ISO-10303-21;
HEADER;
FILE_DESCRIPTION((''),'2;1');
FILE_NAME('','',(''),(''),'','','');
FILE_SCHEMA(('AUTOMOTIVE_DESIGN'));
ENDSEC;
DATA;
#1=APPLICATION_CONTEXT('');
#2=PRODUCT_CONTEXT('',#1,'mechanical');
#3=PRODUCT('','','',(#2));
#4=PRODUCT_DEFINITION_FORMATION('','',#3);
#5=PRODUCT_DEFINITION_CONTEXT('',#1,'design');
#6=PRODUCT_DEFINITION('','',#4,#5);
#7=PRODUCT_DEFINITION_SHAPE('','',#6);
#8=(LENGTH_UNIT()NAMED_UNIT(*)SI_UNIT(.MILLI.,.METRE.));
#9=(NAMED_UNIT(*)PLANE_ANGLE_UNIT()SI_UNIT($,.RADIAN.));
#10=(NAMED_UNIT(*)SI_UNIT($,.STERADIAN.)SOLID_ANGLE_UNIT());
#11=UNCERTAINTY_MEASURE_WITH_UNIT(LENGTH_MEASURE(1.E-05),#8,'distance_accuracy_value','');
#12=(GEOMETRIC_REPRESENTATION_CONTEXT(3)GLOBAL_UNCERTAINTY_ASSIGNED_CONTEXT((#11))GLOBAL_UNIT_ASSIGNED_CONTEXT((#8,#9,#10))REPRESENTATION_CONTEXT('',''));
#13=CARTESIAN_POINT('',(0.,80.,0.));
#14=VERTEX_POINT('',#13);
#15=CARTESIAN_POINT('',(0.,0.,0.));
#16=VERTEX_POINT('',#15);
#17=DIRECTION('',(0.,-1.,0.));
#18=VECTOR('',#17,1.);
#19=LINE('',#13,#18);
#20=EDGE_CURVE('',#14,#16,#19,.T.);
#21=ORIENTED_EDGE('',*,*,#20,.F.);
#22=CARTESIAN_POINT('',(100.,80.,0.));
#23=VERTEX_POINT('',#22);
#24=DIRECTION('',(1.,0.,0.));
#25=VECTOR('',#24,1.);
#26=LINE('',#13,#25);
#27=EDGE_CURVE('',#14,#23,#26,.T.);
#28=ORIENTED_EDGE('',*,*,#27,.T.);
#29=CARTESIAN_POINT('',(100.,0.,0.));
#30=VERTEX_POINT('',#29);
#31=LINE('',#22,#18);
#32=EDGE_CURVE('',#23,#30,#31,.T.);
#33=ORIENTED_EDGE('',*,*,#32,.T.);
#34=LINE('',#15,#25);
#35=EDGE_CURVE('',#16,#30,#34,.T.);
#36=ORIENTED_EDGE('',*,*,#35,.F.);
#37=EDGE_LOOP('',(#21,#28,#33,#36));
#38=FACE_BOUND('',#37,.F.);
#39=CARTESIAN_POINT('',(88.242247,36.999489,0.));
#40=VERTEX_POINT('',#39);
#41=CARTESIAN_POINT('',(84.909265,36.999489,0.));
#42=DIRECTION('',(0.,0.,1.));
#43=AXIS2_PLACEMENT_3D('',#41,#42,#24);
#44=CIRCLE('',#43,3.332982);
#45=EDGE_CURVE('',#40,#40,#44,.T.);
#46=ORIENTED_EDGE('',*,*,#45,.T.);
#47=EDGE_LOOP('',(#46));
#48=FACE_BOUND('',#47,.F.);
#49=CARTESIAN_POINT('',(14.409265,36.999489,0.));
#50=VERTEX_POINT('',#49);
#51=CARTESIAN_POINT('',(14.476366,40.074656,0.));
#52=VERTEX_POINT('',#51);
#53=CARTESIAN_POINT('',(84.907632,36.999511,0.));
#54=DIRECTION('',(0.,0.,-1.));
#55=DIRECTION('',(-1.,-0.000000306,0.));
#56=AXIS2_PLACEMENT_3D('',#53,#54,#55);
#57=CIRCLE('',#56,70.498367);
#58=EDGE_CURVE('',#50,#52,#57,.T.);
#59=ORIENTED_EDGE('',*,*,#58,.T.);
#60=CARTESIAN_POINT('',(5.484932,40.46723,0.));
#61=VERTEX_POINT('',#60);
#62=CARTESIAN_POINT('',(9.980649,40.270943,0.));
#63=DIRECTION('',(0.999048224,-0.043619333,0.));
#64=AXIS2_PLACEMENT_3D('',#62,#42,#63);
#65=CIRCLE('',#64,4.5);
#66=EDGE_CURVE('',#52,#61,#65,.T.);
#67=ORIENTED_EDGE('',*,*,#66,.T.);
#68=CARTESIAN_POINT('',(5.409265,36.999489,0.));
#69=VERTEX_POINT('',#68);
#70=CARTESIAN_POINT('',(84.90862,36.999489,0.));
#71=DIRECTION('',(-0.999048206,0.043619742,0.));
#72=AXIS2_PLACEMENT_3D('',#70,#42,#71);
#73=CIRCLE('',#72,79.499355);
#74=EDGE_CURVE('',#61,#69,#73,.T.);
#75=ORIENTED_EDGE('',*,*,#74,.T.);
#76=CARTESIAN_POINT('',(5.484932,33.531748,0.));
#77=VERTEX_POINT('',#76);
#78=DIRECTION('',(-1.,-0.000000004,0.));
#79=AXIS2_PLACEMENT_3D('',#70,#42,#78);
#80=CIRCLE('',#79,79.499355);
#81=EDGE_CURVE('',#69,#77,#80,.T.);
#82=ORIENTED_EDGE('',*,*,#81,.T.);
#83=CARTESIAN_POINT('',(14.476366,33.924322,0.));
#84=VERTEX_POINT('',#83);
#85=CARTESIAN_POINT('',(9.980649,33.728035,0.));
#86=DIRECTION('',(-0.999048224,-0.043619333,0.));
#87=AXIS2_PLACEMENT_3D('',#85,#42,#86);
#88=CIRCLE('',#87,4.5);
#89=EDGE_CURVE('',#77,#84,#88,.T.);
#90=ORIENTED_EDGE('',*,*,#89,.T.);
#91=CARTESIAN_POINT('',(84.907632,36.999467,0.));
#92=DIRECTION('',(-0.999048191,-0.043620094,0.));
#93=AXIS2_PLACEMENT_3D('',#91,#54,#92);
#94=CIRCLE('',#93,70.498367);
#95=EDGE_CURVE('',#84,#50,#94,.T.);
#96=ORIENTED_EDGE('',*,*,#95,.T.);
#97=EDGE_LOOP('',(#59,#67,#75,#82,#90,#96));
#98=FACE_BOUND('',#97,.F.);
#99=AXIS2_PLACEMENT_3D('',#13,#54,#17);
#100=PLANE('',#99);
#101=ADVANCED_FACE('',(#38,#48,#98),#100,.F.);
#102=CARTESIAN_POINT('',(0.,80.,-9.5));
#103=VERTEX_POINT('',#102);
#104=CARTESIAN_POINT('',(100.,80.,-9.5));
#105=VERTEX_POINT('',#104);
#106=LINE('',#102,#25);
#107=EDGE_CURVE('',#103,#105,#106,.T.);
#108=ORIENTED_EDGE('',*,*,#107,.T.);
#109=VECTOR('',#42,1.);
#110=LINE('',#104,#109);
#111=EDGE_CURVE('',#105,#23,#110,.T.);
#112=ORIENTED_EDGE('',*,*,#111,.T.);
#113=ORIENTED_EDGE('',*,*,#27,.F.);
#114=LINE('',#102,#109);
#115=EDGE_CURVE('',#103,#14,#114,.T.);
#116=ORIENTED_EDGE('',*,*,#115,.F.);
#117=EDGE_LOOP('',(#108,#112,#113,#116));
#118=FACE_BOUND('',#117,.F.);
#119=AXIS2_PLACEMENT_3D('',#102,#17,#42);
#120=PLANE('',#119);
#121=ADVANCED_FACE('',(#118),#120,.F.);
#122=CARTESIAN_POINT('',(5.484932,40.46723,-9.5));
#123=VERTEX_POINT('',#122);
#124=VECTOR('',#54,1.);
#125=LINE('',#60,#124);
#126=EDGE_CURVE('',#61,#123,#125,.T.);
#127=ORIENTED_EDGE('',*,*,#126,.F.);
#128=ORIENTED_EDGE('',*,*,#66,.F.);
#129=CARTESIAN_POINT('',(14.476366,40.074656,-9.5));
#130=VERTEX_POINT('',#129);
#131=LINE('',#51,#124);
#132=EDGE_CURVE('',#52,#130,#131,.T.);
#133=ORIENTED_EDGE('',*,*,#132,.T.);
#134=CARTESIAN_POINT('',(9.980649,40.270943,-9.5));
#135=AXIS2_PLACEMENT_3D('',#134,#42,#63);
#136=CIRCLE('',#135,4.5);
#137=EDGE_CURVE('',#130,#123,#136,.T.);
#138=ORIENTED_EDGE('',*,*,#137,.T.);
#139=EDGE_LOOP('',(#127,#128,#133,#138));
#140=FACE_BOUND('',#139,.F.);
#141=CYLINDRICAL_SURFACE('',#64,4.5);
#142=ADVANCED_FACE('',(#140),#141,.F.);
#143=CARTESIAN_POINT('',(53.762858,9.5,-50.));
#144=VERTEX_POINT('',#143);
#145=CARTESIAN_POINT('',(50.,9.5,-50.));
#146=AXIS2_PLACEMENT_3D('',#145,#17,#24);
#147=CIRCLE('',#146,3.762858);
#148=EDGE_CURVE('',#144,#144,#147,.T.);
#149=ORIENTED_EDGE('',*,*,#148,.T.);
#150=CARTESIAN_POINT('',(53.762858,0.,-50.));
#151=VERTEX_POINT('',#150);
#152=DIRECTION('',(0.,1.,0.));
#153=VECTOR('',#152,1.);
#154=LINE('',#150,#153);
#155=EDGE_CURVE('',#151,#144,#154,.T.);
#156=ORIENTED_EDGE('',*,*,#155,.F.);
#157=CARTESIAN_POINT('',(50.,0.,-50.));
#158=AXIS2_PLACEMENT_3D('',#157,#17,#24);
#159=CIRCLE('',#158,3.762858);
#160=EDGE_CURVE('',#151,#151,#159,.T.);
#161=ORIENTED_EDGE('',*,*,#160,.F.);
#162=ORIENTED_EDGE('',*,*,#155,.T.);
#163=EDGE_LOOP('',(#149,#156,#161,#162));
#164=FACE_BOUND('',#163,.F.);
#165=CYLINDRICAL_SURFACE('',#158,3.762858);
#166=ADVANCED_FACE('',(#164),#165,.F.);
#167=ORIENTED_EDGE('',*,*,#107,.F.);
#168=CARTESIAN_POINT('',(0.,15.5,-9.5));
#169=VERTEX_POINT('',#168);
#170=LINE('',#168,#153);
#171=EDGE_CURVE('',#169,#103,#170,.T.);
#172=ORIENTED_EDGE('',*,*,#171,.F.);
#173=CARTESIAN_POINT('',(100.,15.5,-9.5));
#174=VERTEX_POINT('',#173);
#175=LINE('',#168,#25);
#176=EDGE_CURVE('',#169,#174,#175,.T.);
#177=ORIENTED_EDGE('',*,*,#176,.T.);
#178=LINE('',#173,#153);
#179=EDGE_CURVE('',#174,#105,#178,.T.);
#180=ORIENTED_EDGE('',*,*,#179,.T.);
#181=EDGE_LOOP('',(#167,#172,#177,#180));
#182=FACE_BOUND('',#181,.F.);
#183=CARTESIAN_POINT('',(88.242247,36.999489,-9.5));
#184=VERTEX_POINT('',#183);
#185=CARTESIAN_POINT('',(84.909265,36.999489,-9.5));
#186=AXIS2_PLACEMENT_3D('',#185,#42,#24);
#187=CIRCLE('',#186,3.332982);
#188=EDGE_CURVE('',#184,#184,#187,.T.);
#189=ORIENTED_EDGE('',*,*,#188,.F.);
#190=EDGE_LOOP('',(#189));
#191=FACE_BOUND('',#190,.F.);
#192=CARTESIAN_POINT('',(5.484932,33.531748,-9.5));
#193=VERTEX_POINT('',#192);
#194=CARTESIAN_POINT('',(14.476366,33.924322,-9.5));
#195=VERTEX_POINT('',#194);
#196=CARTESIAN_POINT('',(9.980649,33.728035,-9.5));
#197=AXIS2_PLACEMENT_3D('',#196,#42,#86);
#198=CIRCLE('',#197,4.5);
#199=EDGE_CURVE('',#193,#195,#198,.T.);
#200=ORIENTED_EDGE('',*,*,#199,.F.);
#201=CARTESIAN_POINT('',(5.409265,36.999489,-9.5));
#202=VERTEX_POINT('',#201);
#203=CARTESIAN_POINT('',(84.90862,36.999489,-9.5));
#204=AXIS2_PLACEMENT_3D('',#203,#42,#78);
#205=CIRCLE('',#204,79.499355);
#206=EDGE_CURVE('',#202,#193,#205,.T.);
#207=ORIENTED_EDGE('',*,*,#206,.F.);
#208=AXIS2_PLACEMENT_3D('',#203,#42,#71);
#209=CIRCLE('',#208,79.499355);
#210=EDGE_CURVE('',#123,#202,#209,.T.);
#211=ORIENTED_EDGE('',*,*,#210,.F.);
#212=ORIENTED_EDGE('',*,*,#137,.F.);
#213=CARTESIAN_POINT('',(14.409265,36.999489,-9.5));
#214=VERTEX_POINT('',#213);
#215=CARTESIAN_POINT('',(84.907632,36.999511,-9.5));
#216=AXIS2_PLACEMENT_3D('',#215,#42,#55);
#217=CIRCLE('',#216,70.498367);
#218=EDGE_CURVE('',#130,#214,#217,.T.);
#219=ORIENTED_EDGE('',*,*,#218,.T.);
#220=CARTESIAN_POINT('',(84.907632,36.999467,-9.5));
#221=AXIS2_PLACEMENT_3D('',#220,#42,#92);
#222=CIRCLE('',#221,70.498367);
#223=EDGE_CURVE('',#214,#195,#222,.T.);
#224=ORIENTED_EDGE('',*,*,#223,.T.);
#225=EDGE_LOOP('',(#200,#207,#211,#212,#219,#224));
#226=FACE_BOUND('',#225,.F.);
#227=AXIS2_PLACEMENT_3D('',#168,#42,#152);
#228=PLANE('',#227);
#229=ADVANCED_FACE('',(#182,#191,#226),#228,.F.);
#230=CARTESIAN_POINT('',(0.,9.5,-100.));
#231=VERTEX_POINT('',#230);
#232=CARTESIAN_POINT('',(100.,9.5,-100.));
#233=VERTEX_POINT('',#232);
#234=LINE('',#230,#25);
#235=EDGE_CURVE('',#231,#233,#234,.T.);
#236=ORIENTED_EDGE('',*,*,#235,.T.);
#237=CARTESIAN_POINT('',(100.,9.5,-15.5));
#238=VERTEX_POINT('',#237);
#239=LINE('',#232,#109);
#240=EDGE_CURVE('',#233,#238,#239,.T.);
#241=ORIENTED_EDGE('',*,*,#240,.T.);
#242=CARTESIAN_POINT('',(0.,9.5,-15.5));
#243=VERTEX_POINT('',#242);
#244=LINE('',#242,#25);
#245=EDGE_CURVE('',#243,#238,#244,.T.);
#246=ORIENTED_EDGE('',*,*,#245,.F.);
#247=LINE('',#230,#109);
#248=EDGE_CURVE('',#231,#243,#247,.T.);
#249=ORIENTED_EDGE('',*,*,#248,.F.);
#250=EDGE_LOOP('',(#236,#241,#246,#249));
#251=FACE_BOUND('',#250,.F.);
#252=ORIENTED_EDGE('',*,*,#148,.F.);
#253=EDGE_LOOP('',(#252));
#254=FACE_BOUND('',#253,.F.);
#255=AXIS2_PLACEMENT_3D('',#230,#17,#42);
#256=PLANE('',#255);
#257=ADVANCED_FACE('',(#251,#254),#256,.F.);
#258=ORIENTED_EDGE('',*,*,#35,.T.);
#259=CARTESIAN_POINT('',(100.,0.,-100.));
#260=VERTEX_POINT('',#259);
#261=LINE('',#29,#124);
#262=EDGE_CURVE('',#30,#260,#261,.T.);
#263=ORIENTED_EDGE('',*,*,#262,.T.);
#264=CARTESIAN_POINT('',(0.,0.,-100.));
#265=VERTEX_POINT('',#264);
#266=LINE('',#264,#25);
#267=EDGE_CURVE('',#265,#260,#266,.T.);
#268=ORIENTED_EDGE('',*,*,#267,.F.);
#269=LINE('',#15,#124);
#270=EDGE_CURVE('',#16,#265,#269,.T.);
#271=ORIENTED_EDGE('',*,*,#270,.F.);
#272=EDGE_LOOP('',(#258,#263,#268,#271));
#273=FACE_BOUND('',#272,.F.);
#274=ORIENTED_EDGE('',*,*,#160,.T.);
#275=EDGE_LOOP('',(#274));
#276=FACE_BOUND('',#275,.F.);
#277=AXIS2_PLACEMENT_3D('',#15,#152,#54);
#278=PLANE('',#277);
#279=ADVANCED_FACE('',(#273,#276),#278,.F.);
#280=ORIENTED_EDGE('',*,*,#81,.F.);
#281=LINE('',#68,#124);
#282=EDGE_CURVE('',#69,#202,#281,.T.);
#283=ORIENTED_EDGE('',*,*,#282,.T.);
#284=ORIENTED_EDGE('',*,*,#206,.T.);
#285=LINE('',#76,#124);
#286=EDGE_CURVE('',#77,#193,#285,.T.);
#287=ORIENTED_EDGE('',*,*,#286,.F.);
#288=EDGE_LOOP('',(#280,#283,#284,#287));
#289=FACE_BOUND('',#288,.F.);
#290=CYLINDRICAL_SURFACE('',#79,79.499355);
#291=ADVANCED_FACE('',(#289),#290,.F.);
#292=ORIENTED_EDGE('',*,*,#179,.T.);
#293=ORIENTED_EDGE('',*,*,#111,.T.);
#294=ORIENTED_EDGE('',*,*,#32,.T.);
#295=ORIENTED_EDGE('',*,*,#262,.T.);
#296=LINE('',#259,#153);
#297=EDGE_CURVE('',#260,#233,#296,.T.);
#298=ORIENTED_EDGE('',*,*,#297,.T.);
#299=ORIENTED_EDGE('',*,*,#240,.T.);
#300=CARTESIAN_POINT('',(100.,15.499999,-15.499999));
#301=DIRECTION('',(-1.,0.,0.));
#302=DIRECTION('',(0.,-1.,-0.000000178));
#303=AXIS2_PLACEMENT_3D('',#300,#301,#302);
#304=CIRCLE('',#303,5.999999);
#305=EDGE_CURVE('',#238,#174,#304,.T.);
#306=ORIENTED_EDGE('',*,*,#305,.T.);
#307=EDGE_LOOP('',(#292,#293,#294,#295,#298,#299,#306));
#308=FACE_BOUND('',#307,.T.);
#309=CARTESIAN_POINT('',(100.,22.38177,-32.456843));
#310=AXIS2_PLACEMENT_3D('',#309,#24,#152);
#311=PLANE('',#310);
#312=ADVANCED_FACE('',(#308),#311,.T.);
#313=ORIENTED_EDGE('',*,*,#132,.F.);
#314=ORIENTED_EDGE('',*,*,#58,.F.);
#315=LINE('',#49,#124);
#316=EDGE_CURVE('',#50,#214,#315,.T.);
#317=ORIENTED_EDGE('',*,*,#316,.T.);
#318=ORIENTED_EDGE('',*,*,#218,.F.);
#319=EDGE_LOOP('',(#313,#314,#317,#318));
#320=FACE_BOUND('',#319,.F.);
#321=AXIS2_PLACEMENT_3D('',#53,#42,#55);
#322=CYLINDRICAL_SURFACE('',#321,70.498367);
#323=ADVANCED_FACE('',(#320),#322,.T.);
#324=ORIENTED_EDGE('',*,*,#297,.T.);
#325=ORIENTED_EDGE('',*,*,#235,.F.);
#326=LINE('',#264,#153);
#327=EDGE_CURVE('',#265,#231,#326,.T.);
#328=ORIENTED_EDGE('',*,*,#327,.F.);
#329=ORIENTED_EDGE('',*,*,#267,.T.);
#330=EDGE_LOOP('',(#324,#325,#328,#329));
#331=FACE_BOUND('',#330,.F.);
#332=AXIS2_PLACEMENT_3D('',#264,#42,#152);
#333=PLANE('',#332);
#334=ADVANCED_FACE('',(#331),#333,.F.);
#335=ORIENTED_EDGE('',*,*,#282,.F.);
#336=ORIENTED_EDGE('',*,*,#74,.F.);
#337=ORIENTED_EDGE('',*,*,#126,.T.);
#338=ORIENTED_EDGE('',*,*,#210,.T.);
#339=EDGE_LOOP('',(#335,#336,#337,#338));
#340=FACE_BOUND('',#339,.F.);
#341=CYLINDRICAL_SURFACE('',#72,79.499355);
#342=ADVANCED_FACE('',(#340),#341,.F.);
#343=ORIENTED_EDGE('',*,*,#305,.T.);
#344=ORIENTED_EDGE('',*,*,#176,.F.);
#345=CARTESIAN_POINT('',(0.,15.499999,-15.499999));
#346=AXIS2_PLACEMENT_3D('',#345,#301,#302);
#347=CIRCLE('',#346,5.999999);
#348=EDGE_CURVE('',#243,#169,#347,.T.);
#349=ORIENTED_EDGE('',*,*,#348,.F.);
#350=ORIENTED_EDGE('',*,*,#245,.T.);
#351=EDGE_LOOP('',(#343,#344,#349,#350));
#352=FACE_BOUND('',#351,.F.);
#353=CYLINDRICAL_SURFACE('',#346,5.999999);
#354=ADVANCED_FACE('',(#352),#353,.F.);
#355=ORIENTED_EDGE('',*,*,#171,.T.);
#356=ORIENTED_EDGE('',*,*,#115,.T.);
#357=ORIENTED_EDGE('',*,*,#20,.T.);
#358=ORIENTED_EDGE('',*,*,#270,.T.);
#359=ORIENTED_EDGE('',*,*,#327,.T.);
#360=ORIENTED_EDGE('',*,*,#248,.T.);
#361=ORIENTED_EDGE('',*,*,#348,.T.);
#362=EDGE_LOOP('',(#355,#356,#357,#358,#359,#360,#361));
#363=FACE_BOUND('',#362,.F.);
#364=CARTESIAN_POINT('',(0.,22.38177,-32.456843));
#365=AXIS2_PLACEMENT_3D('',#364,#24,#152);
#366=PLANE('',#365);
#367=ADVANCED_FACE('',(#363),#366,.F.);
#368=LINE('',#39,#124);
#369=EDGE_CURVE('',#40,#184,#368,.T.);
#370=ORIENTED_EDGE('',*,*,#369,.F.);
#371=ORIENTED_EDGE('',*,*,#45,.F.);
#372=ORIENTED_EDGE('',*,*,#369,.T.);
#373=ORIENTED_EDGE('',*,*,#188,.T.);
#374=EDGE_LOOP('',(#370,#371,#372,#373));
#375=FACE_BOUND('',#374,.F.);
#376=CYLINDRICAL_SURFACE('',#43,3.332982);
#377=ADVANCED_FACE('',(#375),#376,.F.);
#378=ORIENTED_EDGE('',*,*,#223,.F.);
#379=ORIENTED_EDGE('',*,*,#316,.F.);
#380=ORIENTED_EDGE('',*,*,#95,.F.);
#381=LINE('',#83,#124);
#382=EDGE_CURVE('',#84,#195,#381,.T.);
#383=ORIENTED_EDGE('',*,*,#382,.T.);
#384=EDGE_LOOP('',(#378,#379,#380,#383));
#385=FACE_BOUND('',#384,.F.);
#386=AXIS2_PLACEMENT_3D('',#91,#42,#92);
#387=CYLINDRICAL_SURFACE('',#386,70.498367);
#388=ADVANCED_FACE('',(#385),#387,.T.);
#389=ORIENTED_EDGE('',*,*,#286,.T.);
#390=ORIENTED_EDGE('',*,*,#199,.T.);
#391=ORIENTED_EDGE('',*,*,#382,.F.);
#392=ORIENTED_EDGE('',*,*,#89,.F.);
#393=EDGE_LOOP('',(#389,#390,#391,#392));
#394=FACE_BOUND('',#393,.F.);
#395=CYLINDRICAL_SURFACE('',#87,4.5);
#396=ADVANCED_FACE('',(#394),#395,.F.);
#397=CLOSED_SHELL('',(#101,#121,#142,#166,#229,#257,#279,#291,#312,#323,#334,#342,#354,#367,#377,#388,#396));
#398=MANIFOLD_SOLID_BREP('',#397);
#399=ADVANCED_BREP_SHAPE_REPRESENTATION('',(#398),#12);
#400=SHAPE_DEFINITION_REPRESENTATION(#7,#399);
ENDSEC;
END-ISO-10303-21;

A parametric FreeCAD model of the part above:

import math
import FreeCAD as App
import Part
import Sketcher
from FreeCAD import Vector
Q = App.Units.Quantity

doc = App.newDocument("Part")
params = doc.addObject("Spreadsheet::Sheet", "Params")
for row, (alias, value) in enumerate([
    ("sketch1_radius", "5.999999 mm"),
    ("sketch1_width", "80 mm"),
    ("sketch1_height", "100 mm"),
    ("sketch1_width2", "9.5 mm"),
    ("pad1_length", "100 mm"),
    ("sketch2_radius", "4.5 mm"),
    ("sketch2_radius2", "4.5 mm"),
    ("pocket1_length", "25 mm"),
    ("pocket2_length", "25 mm"),
], start=1):
    params.set(f"A{row}", alias)
    params.set(f"B{row}", "=" + value)
    params.setAlias(f"B{row}", alias)

body = doc.addObject("PartDesign::Body", "Body")

sketch1 = body.newObject("Sketcher::SketchObject", "Sketch")
sketch1.AttachmentSupport = (doc.getObject("YZ_Plane"), [""])
sketch1.MapMode = "FlatFace"
sketch1.addGeometry([
    Part.LineSegment(Vector(80, 0, 0), Vector(0, 0, 0)),
    Part.LineSegment(Vector(0, 0, 0), Vector(0, -100, 0)),
    Part.LineSegment(Vector(0, -100, 0), Vector(9.5, -100, 0)),
    Part.LineSegment(Vector(9.5, -100, 0), Vector(9.5, -15.5, 0)),
    Part.ArcOfCircle(Part.Circle(Vector(15.499999, -15.499999, 0), Vector(0, 0, 1), 5.999999), math.radians(89.99999), math.radians(180.00001)),
    Part.LineSegment(Vector(15.5, -9.5, 0), Vector(80, -9.5, 0)),
    Part.LineSegment(Vector(80, -9.5, 0), Vector(80, 0, 0)),
], False)
sketch1.addConstraint([
    Sketcher.Constraint("Coincident", 0, 2, 1, 1),
    Sketcher.Constraint("Coincident", 1, 2, 2, 1),
    Sketcher.Constraint("Coincident", 2, 2, 3, 1),
    Sketcher.Constraint("Tangent", 3, 2, 4, 2),
    Sketcher.Constraint("Tangent", 4, 1, 5, 1),
    Sketcher.Constraint("Coincident", 5, 2, 6, 1),
    Sketcher.Constraint("Coincident", 6, 2, 0, 1),
    Sketcher.Constraint("Horizontal", 0),
    Sketcher.Constraint("Vertical", 1),
    Sketcher.Constraint("Horizontal", 2),
    Sketcher.Constraint("Vertical", 3),
    Sketcher.Constraint("Horizontal", 5),
    Sketcher.Constraint("Vertical", 6),
    Sketcher.Constraint("Coincident", 0, 2, -1, 1),
    Sketcher.Constraint("Equal", 2, 6),
    Sketcher.Constraint("Radius", 4, Q("5.999999 mm")),
    Sketcher.Constraint("DistanceX", 0, 2, 0, 1, Q("80 mm")),
    Sketcher.Constraint("DistanceY", 1, 2, 1, 1, Q("100 mm")),
    Sketcher.Constraint("DistanceX", 2, 1, 2, 2, Q("9.5 mm")),
])
sketch1.setExpression("Constraints[15]", "Params.sketch1_radius")
sketch1.setExpression("Constraints[16]", "Params.sketch1_width")
sketch1.setExpression("Constraints[17]", "Params.sketch1_height")
sketch1.setExpression("Constraints[18]", "Params.sketch1_width2")
pad1 = body.newObject("PartDesign::Pad", "Pad")
pad1.Profile = sketch1
pad1.setExpression("Length", "Params.pad1_length")

sketch2 = body.newObject("Sketcher::SketchObject", "Sketch001")
sketch2.AttachmentSupport = (doc.getObject("XY_Plane"), [""])
sketch2.MapMode = "FlatFace"
sketch2.addGeometry([
    Part.Circle(Vector(84.909265, 36.999489, 0), Vector(0, 0, 1), 3.332982),
    Part.ArcOfCircle(Part.Circle(Vector(9.980649, 33.728035, 0), Vector(0, 0, 1), 4.5), math.radians(-177.500003), math.radians(2.499997)),
    Part.ArcOfCircle(Part.Circle(Vector(84.907632, 36.999467, 0), Vector(0, 0, 1), 70.498367), math.radians(179.999982), math.radians(182.500041)),
    Part.ArcOfCircle(Part.Circle(Vector(84.907632, 36.999511, 0), Vector(0, 0, 1), 70.498367), math.radians(177.499959), math.radians(180.000018)),
    Part.ArcOfCircle(Part.Circle(Vector(9.980649, 40.270943, 0), Vector(0, 0, 1), 4.5), math.radians(-2.499997), math.radians(177.500003)),
    Part.ArcOfCircle(Part.Circle(Vector(84.90862, 36.999489, 0), Vector(0, 0, 1), 79.499355), math.radians(177.49998), math.radians(180)),
    Part.ArcOfCircle(Part.Circle(Vector(84.90862, 36.999489, 0), Vector(0, 0, 1), 79.499355), math.radians(-180), math.radians(-177.49998)),
], False)
sketch2.addConstraint([
    Sketcher.Constraint("Coincident", 1, 2, 2, 2),
    Sketcher.Constraint("Coincident", 2, 1, 3, 2),
    Sketcher.Constraint("Coincident", 3, 1, 4, 1),
    Sketcher.Constraint("Coincident", 4, 2, 5, 1),
    Sketcher.Constraint("Coincident", 5, 2, 6, 1),
    Sketcher.Constraint("Coincident", 6, 2, 1, 1),
    Sketcher.Constraint("Coincident", 6, 3, 5, 3),
    Sketcher.Constraint("Radius", 1, Q("4.5 mm")),
    Sketcher.Constraint("Radius", 4, Q("4.5 mm")),
    Sketcher.Constraint("DistanceX", 5, 2, 2, 1, Q("9 mm")),
    Sketcher.Constraint("Diameter", 0, Q("6.665964 mm")),
    Sketcher.Constraint("Radius", 2, Q("70.498367 mm")),
    Sketcher.Constraint("Radius", 3, Q("70.498367 mm")),
    Sketcher.Constraint("Radius", 5, Q("79.499355 mm")),
    Sketcher.Constraint("DistanceX", 2, 1, 1, 2, Q("0.067101 mm")),
    Sketcher.Constraint("DistanceX", 2, 1, 3, 1, Q("0.067101 mm")),
    Sketcher.Constraint("DistanceY", -1, 1, 0, 3, Q("36.999489 mm")),
    Sketcher.Constraint("DistanceX", -1, 1, 1, 3, Q("9.980649 mm")),
    Sketcher.Constraint("DistanceY", -1, 1, 3, 3, Q("36.999511 mm")),
    Sketcher.Constraint("DistanceX", -1, 1, 4, 3, Q("9.980649 mm")),
    Sketcher.Constraint("DistanceX", -1, 1, 5, 3, Q("84.90862 mm")),
    Sketcher.Constraint("DistanceY", -1, 1, 2, 1, Q("36.999489 mm")),
    Sketcher.Constraint("DistanceY", -1, 1, 4, 2, Q("40.46723 mm")),
    Sketcher.Constraint("DistanceY", -1, 1, 5, 2, Q("36.999489 mm")),
    Sketcher.Constraint("DistanceY", -1, 1, 6, 2, Q("33.531748 mm")),
    Sketcher.Constraint("DistanceX", -1, 1, 0, 3, Q("84.909265 mm")),
])
sketch2.setExpression("Constraints[7]", "Params.sketch2_radius")
sketch2.setExpression("Constraints[8]", "Params.sketch2_radius2")
pocket1 = body.newObject("PartDesign::Pocket", "Pocket")
pocket1.Profile = sketch2
pocket1.setExpression("Length", "Params.pocket1_length")

sketch3 = body.newObject("Sketcher::SketchObject", "Sketch002")
sketch3.AttachmentSupport = (doc.getObject("XZ_Plane"), [""])
sketch3.MapMode = "FlatFace"
sketch3.addGeometry(Part.Circle(Vector(50, -50, 0), Vector(0, 0, 1), 3.762858), False)
sketch3.addConstraint([
    Sketcher.Constraint("DistanceX", -1, 1, 0, 3, Q("50 mm")),
    Sketcher.Constraint("DistanceY", 0, 3, -1, 1, Q("50 mm")),
    Sketcher.Constraint("Diameter", 0, Q("7.525716 mm")),
])
pocket2 = body.newObject("PartDesign::Pocket", "Pocket001")
pocket2.Profile = sketch3
pocket2.setExpression("Length", "Params.pocket2_length")

doc.recompute()
